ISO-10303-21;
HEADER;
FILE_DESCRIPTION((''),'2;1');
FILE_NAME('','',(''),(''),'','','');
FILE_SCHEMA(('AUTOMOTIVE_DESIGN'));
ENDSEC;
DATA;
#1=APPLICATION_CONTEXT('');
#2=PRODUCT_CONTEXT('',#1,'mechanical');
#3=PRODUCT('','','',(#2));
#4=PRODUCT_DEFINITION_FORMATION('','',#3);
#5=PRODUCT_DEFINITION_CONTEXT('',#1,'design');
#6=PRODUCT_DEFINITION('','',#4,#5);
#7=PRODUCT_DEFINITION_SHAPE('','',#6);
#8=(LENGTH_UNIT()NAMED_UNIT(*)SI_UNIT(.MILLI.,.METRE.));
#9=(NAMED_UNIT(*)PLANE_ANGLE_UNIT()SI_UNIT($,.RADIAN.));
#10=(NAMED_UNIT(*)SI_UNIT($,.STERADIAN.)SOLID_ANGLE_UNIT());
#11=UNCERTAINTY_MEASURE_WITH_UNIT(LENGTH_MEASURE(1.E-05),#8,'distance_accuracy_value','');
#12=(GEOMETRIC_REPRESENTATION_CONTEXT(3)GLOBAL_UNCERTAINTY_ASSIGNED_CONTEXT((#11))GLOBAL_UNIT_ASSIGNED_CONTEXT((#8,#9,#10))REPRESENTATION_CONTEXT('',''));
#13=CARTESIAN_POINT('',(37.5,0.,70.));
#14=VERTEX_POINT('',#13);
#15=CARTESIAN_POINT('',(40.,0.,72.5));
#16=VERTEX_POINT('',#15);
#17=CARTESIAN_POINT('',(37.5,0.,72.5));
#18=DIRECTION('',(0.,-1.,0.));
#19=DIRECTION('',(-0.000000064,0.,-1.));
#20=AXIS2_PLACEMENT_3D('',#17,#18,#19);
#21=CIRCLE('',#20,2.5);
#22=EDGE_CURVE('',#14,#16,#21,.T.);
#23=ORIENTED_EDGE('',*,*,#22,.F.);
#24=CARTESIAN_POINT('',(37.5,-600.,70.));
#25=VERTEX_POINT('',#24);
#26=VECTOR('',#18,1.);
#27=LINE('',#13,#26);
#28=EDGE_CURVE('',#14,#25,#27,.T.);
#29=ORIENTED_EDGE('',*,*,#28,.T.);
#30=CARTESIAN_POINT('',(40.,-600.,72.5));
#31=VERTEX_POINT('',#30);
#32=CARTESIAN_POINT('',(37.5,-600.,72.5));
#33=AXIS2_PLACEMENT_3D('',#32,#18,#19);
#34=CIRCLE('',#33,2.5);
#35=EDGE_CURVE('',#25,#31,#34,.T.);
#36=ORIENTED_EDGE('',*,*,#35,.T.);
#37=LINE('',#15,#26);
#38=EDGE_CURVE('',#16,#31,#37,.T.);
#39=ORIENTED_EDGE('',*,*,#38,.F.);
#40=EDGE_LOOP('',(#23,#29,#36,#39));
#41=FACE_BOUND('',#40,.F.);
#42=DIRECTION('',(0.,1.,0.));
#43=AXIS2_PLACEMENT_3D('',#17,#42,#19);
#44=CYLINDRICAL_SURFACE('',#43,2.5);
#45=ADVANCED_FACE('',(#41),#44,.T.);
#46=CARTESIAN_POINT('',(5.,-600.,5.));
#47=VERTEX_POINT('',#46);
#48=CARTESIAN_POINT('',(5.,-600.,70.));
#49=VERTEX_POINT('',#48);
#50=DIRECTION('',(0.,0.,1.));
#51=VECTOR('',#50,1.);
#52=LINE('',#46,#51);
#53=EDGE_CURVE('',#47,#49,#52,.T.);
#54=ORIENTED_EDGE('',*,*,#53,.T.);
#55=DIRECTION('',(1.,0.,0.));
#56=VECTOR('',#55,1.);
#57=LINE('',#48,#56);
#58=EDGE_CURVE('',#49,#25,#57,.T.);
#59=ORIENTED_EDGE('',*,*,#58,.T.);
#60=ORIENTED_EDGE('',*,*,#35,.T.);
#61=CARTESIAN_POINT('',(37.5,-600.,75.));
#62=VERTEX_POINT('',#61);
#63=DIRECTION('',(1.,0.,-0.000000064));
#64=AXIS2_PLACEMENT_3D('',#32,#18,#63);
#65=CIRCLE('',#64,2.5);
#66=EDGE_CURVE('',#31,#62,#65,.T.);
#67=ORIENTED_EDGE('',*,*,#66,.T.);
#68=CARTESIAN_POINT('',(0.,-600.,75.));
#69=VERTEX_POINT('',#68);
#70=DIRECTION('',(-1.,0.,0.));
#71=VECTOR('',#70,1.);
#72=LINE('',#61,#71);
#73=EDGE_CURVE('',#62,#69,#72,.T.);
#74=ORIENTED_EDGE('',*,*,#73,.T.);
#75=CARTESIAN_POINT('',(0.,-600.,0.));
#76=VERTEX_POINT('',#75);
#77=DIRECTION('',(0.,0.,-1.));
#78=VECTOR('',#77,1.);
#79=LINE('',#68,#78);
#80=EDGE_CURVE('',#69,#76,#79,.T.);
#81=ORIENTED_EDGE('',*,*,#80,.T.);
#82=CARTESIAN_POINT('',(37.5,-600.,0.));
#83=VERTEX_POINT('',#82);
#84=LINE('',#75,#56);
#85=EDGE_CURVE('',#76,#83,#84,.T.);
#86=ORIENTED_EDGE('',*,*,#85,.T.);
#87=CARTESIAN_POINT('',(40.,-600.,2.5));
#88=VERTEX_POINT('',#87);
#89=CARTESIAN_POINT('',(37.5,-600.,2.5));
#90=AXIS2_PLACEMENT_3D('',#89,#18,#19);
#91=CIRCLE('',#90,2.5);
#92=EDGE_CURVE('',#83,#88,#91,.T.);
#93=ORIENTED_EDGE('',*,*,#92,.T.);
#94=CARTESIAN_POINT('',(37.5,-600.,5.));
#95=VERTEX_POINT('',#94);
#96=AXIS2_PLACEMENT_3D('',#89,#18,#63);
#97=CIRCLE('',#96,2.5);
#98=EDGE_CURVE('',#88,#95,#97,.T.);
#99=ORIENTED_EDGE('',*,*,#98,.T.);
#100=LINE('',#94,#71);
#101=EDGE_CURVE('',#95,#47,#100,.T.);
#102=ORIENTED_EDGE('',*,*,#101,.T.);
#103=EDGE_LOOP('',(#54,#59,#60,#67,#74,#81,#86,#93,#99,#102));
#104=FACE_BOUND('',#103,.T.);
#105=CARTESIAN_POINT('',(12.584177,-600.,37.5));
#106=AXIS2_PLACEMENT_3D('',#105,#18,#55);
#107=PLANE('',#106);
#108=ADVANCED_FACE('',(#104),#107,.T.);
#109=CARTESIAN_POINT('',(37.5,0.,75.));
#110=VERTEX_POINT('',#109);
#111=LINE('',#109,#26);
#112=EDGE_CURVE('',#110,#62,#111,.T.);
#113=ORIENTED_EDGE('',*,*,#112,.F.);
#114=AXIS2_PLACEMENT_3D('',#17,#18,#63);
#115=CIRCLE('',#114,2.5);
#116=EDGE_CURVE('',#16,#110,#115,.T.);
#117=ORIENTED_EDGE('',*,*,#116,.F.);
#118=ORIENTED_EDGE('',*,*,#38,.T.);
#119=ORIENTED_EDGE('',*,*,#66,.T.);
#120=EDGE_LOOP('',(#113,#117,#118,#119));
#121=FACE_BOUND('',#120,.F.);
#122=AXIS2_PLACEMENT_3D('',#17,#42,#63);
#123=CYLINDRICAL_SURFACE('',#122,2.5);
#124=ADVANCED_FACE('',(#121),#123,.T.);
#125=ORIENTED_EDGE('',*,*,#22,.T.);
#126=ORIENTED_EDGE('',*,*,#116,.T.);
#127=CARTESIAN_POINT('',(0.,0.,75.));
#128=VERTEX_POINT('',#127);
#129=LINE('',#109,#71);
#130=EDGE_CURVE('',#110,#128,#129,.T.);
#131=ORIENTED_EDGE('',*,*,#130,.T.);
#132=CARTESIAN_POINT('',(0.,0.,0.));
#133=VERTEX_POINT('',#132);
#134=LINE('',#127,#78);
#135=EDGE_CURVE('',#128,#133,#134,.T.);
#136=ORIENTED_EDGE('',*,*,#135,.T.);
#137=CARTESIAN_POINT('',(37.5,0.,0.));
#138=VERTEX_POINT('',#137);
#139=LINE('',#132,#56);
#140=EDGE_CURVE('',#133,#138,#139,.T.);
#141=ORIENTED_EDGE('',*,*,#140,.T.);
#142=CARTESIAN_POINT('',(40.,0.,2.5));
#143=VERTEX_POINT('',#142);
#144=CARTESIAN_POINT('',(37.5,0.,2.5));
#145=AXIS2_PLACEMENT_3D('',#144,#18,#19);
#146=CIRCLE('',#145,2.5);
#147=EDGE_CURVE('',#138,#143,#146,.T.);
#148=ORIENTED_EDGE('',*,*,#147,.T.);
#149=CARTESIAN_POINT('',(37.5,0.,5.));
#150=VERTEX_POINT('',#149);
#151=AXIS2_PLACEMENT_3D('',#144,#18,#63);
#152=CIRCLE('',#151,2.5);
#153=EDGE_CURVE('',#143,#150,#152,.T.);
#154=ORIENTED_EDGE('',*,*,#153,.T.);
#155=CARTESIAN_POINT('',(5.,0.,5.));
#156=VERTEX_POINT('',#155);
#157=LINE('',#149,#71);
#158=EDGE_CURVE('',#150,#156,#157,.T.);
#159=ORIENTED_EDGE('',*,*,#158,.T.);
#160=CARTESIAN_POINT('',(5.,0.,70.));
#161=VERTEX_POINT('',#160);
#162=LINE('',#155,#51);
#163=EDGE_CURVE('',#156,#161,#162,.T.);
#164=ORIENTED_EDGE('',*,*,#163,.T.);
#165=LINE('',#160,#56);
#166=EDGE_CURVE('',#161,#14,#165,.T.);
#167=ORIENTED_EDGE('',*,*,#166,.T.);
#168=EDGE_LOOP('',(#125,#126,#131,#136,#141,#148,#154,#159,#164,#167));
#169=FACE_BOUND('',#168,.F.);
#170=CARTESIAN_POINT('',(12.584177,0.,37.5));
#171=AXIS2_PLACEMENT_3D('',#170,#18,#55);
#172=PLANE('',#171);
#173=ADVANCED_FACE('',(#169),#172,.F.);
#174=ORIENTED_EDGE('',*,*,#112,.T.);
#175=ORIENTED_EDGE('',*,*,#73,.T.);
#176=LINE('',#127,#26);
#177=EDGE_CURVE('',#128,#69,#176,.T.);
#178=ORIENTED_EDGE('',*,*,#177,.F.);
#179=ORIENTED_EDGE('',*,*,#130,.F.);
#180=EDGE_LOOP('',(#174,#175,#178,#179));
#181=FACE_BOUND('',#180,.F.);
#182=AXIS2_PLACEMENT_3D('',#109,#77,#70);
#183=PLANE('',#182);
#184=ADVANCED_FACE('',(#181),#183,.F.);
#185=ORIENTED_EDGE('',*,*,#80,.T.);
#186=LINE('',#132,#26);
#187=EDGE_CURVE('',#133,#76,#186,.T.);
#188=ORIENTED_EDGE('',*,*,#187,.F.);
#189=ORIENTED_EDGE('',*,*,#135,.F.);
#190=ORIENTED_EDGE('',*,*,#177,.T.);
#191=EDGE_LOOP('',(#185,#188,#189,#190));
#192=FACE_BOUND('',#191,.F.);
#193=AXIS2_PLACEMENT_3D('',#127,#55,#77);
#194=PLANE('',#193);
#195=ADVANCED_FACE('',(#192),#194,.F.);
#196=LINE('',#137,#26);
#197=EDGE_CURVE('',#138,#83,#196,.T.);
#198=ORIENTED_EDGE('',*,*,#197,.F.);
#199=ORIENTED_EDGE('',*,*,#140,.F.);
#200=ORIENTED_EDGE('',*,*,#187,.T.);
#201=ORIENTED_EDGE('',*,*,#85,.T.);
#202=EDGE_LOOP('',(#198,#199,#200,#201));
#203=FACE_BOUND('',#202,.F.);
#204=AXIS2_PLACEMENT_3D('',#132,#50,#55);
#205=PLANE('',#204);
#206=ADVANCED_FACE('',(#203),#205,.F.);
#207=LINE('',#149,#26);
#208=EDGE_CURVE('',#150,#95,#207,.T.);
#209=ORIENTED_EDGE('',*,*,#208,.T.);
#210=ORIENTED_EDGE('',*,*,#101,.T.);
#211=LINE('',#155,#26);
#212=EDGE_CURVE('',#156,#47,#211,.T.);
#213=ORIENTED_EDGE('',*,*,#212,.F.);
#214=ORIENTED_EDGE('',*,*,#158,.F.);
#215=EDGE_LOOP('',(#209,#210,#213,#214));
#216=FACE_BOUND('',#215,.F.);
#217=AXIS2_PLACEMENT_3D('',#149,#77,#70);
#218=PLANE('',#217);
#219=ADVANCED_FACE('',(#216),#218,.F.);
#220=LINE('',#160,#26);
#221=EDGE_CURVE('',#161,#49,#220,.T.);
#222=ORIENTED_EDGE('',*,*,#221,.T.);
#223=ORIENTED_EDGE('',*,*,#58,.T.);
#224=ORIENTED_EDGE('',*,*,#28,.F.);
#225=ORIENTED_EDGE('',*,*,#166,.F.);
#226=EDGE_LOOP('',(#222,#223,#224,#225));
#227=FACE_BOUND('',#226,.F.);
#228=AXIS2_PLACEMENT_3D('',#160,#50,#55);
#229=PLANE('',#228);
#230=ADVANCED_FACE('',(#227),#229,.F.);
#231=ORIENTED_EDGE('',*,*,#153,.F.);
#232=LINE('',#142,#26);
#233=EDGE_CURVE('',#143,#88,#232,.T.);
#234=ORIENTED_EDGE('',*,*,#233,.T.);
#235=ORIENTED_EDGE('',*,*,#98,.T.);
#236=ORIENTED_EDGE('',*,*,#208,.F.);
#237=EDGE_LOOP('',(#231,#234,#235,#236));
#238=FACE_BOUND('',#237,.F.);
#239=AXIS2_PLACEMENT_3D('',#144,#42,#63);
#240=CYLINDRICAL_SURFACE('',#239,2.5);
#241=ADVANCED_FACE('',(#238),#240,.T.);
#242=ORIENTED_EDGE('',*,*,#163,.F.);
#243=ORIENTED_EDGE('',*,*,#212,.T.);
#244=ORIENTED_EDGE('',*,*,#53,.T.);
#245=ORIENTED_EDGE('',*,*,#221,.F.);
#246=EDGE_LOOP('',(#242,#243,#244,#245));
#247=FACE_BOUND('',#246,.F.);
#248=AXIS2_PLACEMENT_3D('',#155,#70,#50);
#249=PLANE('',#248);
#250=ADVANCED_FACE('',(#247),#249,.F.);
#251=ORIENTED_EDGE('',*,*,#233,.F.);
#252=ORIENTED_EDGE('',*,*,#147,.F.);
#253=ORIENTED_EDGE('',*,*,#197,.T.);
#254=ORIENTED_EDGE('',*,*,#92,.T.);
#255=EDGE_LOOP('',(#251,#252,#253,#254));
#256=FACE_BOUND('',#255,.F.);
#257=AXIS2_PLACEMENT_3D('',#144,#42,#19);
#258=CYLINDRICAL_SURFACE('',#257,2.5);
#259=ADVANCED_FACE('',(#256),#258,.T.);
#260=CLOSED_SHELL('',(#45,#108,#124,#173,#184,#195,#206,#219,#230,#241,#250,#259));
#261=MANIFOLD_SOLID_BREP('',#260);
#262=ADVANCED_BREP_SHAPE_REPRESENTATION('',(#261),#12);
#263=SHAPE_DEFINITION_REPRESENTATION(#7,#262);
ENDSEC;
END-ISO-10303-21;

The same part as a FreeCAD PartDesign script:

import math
import FreeCAD as App
import Part
import Sketcher

V = App.Vector
Q = App.Units.Quantity

doc = App.newDocument("Part")
body = doc.addObject("PartDesign::Body", "Body")

sketch1 = body.newObject("Sketcher::SketchObject", "Sketch")
sketch1.AttachmentSupport = (doc.getObject("XZ_Plane"), [""])
sketch1.MapMode = "FlatFace"
sketch1.addGeometry([
    Part.LineSegment(V(0, 75, 0), V(0, 0, 0)),
    Part.LineSegment(V(0, 0, 0), V(37.5, 0, 0)),
    Part.ArcOfCircle(Part.Circle(V(37.5, 2.5, 0), V(0, 0, 1), 2.5), math.radians(-90.000004), math.radians(0.000004)),
    Part.ArcOfCircle(Part.Circle(V(37.5, 2.5, 0), V(0, 0, 1), 2.5), math.radians(-0.000004), math.radians(90.000004)),
    Part.LineSegment(V(37.5, 5, 0), V(5, 5, 0)),
    Part.LineSegment(V(5, 5, 0), V(5, 70, 0)),
    Part.LineSegment(V(5, 70, 0), V(37.5, 70, 0)),
    Part.ArcOfCircle(Part.Circle(V(37.5, 72.5, 0), V(0, 0, 1), 2.5), math.radians(-90.000004), math.radians(0.000004)),
    Part.ArcOfCircle(Part.Circle(V(37.5, 72.5, 0), V(0, 0, 1), 2.5), math.radians(-0.000004), math.radians(90.000004)),
    Part.LineSegment(V(37.5, 75, 0), V(0, 75, 0)),
], False)
sketch1.addConstraint([
    Sketcher.Constraint("Coincident", 0, 2, 1, 1),
    Sketcher.Constraint("Tangent", 1, 2, 2, 1),
    Sketcher.Constraint("Tangent", 2, 2, 3, 1),
    Sketcher.Constraint("Tangent", 3, 2, 4, 1),
    Sketcher.Constraint("Coincident", 4, 2, 5, 1),
    Sketcher.Constraint("Coincident", 5, 2, 6, 1),
    Sketcher.Constraint("Tangent", 6, 2, 7, 1),
    Sketcher.Constraint("Tangent", 7, 2, 8, 1),
    Sketcher.Constraint("Tangent", 8, 2, 9, 1),
    Sketcher.Constraint("Coincident", 9, 2, 0, 1),
    Sketcher.Constraint("Vertical", 0),
    Sketcher.Constraint("Horizontal", 1),
    Sketcher.Constraint("Horizontal", 4),
    Sketcher.Constraint("Vertical", 5),
    Sketcher.Constraint("Horizontal", 6),
    Sketcher.Constraint("Horizontal", 9),
    Sketcher.Constraint("Coincident", 0, 2, -1, 1),
    Sketcher.Constraint("Equal", 2, 3),
    Sketcher.Constraint("Equal", 3, 7),
    Sketcher.Constraint("Equal", 7, 8),
    Sketcher.Constraint("Horizontal", 3, 3, 2, 2),
    Sketcher.Constraint("Horizontal", 8, 3, 7, 2),
    Sketcher.Constraint("Vertical", 3, 3, 7, 3),
    Sketcher.Constraint("Radius", 2, Q("2.5 mm")),
    Sketcher.Constraint("DistanceY", 0, 2, 0, 1, Q("75 mm")),
    Sketcher.Constraint("DistanceX", 1, 1, 1, 2, Q("37.5 mm")),
    Sketcher.Constraint("DistanceX", 4, 2, 4, 1, Q("32.5 mm")),
])
pad1 = body.newObject("PartDesign::Pad", "Pad")
pad1.Profile = sketch1
pad1.Length = 600

doc.recompute()
